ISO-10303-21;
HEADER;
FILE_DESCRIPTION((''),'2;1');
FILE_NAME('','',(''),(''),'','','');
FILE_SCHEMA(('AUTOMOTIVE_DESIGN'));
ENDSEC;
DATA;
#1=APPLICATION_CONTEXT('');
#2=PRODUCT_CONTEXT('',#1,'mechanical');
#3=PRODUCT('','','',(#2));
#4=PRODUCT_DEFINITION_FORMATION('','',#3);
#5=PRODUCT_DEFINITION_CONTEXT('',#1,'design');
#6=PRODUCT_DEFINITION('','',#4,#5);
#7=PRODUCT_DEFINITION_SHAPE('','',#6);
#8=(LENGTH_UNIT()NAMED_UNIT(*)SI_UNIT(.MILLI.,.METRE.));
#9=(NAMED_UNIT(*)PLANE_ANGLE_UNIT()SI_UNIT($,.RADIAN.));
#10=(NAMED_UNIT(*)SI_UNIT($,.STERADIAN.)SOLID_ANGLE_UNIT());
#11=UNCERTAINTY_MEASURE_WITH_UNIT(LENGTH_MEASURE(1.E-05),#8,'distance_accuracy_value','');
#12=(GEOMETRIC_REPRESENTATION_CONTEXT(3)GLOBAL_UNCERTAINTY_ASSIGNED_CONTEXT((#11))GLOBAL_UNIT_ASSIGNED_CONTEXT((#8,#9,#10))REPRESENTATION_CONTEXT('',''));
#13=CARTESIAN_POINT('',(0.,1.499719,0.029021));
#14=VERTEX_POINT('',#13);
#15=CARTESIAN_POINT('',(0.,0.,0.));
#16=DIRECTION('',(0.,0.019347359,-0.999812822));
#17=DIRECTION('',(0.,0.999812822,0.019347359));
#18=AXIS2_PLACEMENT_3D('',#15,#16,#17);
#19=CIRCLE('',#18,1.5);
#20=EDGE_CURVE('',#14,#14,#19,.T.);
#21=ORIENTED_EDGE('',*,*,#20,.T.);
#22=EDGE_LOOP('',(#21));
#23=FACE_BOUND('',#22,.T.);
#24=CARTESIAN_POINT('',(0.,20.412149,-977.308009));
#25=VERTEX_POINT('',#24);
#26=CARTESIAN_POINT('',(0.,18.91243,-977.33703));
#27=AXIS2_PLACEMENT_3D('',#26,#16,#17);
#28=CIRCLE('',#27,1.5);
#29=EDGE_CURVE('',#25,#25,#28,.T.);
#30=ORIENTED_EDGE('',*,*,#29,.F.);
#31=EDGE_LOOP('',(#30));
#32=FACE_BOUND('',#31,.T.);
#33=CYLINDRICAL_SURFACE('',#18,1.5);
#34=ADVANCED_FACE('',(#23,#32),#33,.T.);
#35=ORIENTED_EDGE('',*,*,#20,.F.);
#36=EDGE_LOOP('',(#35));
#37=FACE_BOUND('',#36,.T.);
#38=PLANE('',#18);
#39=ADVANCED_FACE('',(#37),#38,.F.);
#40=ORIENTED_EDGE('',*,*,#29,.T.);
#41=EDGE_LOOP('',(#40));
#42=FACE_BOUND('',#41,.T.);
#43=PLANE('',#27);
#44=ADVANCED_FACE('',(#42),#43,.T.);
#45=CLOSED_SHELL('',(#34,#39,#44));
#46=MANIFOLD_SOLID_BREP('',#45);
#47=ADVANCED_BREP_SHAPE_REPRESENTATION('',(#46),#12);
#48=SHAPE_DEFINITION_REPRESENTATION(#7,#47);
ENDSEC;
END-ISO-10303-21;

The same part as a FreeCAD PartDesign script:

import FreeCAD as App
import Part
import Sketcher

V = App.Vector

doc = App.newDocument("Part")
body = doc.addObject("PartDesign::Body", "Body")

sketch1 = doc.addObject("Sketcher::SketchObject", "Sketch")
body.addObject(sketch1)
sketch1.Placement = App.Placement(V(0, 0, 0), App.Rotation(V(0, -0.999812822, -0.019347359), V(-0.999999999, 0, 0), V(0, 0.019347359, -0.999812822), "ZXY"))
sketch1.addGeometry(Part.Circle(V(0, 0, 0), V(0, 0, 1), 1.5), False)
sketch1.addConstraint(Sketcher.Constraint("Coincident", 0, 3, -1, 1))
sketch1.addConstraint(Sketcher.Constraint("Diameter", 0, 3.0))

sketch2 = doc.addObject("Sketcher::SketchObject", "Sketch001")
body.addObject(sketch2)
sketch2.Placement = App.Placement(V(0, 0, 0), App.Rotation(V(0, 0.019347359, -0.999812822), V(0.999999999, 0, 0), V(0, -0.999812822, -0.019347359), "ZXY"))
sketch2.addGeometry(Part.LineSegment(V(0, 0, 0), V(978, 0, 0)), False)
sketch2.addConstraint(Sketcher.Constraint("Horizontal", 0))
sketch2.addConstraint(Sketcher.Constraint("Coincident", 0, 1, -1, 1))
sketch2.addConstraint(Sketcher.Constraint("DistanceX", 0, 1, 0, 2, 977.519999))
doc.recompute()

additivepipe = doc.addObject("PartDesign::AdditivePipe", "AdditivePipe")
body.addObject(additivepipe)
additivepipe.Profile = sketch1
additivepipe.Spine = (sketch2, ["Edge1"])

doc.recompute()
